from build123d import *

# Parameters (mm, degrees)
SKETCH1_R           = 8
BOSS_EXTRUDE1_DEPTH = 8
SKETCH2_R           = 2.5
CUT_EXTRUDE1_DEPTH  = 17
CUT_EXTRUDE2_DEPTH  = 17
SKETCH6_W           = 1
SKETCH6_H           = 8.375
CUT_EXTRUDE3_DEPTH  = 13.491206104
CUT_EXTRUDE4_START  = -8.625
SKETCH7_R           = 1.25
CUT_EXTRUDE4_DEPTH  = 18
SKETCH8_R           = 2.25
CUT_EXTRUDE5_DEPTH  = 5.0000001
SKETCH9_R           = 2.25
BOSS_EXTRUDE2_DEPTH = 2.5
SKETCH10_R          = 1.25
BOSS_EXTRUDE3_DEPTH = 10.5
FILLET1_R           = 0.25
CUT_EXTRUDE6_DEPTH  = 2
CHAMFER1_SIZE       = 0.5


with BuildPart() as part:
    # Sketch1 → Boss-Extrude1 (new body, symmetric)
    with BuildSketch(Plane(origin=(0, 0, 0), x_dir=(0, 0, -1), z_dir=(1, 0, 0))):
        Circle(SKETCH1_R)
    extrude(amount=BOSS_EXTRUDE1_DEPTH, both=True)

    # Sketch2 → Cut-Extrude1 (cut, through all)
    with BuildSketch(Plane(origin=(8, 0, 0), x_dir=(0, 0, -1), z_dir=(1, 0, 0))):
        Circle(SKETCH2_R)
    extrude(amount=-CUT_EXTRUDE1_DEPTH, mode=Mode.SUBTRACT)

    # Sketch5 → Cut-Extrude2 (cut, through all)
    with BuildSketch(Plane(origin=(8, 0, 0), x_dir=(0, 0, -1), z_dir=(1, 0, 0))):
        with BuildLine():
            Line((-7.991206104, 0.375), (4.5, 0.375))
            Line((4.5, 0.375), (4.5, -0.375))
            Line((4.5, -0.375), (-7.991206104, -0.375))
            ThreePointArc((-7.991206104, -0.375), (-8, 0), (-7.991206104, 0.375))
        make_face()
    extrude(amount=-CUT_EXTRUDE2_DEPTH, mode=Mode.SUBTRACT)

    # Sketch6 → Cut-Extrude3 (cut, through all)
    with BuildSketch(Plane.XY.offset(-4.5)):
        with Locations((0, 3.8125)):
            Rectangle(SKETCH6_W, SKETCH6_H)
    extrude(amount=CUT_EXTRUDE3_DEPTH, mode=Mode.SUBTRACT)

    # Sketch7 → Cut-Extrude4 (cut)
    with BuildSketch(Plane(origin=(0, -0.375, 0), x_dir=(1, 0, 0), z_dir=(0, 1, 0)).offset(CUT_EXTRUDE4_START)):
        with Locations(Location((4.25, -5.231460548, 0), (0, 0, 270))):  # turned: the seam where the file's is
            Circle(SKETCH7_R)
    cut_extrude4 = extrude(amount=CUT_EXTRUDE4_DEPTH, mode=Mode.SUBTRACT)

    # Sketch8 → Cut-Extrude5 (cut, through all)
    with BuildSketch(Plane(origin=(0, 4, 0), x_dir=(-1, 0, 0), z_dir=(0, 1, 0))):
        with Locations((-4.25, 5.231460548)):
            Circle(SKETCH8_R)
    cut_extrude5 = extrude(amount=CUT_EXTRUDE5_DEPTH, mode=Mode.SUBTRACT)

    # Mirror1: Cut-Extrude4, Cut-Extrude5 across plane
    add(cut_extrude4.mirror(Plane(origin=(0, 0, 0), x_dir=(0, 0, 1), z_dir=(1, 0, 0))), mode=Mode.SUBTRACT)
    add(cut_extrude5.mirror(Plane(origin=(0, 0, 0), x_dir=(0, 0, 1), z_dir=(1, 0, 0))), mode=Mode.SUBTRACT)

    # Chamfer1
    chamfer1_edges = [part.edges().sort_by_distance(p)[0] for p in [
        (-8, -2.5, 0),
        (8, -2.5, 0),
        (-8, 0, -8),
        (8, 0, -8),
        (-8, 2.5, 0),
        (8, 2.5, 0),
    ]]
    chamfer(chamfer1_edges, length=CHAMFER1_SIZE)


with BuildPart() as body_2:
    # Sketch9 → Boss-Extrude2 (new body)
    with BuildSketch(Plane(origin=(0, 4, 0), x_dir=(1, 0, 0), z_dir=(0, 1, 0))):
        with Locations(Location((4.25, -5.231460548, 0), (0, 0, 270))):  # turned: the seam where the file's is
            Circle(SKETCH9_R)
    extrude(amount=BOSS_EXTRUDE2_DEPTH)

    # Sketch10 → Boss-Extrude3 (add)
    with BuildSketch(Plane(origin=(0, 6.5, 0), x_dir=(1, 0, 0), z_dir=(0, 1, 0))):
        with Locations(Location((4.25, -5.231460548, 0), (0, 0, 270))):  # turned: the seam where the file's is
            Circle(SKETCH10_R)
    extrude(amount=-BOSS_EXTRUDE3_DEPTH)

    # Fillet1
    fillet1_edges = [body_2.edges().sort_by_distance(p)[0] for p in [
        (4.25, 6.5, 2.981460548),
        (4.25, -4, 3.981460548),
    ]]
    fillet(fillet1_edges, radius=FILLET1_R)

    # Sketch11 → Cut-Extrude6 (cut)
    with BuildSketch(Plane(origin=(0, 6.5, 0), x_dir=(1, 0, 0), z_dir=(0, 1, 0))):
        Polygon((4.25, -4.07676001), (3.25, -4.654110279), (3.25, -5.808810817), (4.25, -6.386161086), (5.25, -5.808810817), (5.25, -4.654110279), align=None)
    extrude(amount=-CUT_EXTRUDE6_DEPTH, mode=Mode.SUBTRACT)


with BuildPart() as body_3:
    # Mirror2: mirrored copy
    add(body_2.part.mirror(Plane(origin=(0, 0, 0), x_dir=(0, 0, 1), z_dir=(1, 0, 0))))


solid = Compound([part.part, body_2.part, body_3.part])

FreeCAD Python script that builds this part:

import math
import FreeCAD as App
import Part
import Sketcher

V = App.Vector
Q = App.Units.Quantity


def edges_at(feature, points):
    """Names of the edges that pass closest to the given points."""
    edges = feature.Shape.Edges
    near = lambda p: min(range(len(edges)), key=lambda i: edges[i].distToShape(Part.Vertex(*p))[0])
    return sorted({f"Edge{near(p) + 1}" for p in points})


def add_polygon(sketch, points):
    """Adds a closed chain of lines whose ends are joined by coincident constraints."""
    first, n = sketch.GeometryCount, len(points)
    for a, b in zip(points, points[1:] + points[:1]):
        sketch.addGeometry(Part.LineSegment(App.Vector(*a, 0), App.Vector(*b, 0)), False)
    for i in range(n):
        sketch.addConstraint(Sketcher.Constraint("Coincident", first + i, 2, first + (i + 1) % n, 1))

doc = App.newDocument("Part")
body = doc.addObject("PartDesign::Body", "Body")

sketch1 = body.newObject("Sketcher::SketchObject", "Sketch")
sketch1.AttachmentSupport = (doc.getObject("YZ_Plane"), [""])
sketch1.MapMode = "FlatFace"
sketch1.addGeometry(Part.Circle(V(0, 0, 0), V(0, 0, 1), 8), False)
sketch1.addConstraint([
    Sketcher.Constraint("Coincident", 0, 3, -1, 1),
    Sketcher.Constraint("Diameter", 0, 16.0),
])
pad1 = body.newObject("PartDesign::Pad", "Pad")
pad1.Profile = sketch1
pad1.Length = 16
pad1.Midplane = True

sketch2 = body.newObject("Sketcher::SketchObject", "Sketch001")
sketch2.AttachmentSupport = (doc.getObject("YZ_Plane"), [""])
sketch2.MapMode = "FlatFace"
sketch2.AttachmentOffset = App.Placement(V(0, 0, 8), App.Rotation())
sketch2.addGeometry(Part.Circle(V(0, 0, 0), V(0, 0, 1), 2.5), False)
sketch2.addConstraint([
    Sketcher.Constraint("Coincident", 0, 3, -1, 1),
    Sketcher.Constraint("Diameter", 0, 5.0),
])
pocket1 = body.newObject("PartDesign::Pocket", "Pocket")
pocket1.Profile = sketch2
pocket1.Type = "ThroughAll"

sketch3 = body.newObject("Sketcher::SketchObject", "Sketch002")
sketch3.AttachmentSupport = (doc.getObject("YZ_Plane"), [""])
sketch3.MapMode = "FlatFace"
sketch3.AttachmentOffset = App.Placement(V(0, 0, 8), App.Rotation())
sketch3.addGeometry([
    Part.LineSegment(V(0.375, -4.5, 0), V(0.375, 7.991206, 0)),
    Part.ArcOfCircle(Part.Circle(V(0, 0, 0), V(0, 0, 1), 8), math.radians(87.313276), math.radians(92.686724)),
    Part.LineSegment(V(-0.375, 7.991206, 0), V(-0.375, -4.5, 0)),
    Part.LineSegment(V(-0.375, -4.5, 0), V(0.375, -4.5, 0)),
], False)
sketch3.addConstraint([
    Sketcher.Constraint("Coincident", 0, 2, 1, 1),
    Sketcher.Constraint("Coincident", 1, 2, 2, 1),
    Sketcher.Constraint("Coincident", 2, 2, 3, 1),
    Sketcher.Constraint("Coincident", 3, 2, 0, 1),
    Sketcher.Constraint("Vertical", 0),
    Sketcher.Constraint("Vertical", 2),
    Sketcher.Constraint("Horizontal", 3),
    Sketcher.Constraint("Coincident", 1, 3, -1, 1),
    Sketcher.Constraint("Horizontal", 0, 2, 1, 2),
    Sketcher.Constraint("Radius", 1, 8.0),
    Sketcher.Constraint("DistanceX", 3, 1, 3, 2, 0.75),
    Sketcher.Constraint("DistanceY", 2, 2, -1, 1, 4.5),
])
pocket2 = body.newObject("PartDesign::Pocket", "Pocket001")
pocket2.Profile = sketch3
pocket2.Type = "ThroughAll"

sketch4 = body.newObject("Sketcher::SketchObject", "Sketch003")
sketch4.AttachmentSupport = (doc.getObject("XY_Plane"), [""])
sketch4.MapMode = "FlatFace"
sketch4.AttachmentOffset = App.Placement(V(0, 0, -4.5), App.Rotation())
add_polygon(sketch4, [(-0.5, 8), (-0.5, -0.375), (0.5, -0.375), (0.5, 8)])
sketch4.addConstraint([
    Sketcher.Constraint("Vertical", 0),
    Sketcher.Constraint("Horizontal", 1),
    Sketcher.Constraint("Vertical", 2),
    Sketcher.Constraint("Horizontal", 3),
    Sketcher.Constraint("DistanceX", 1, 1, 1, 2, 1.0),
    Sketcher.Constraint("DistanceY", -1, 1, 2, 2, 8.0),
    Sketcher.Constraint("DistanceX", 0, 2, -1, 1, 0.5),
    Sketcher.Constraint("DistanceY", 0, 2, 0, 1, 8.375),
])
pocket3 = body.newObject("PartDesign::Pocket", "Pocket002")
pocket3.Profile = sketch4
pocket3.Type = "ThroughAll"
pocket3.Reversed = True

sketch5 = body.newObject("Sketcher::SketchObject", "Sketch004")
sketch5.AttachmentSupport = (doc.getObject("XZ_Plane"), [""])
sketch5.MapMode = "FlatFace"
sketch5.AttachmentOffset = App.Placement(V(0, 0, 9), App.Rotation())
sketch5.addGeometry(Part.Circle(V(4.25, 5.231461, 0), V(0, 0, 1), 1.25), False)
sketch5.addConstraint([
    Sketcher.Constraint("Diameter", 0, 2.5),
    Sketcher.Constraint("DistanceX", -1, 1, 0, 3, 4.25),
    Sketcher.Constraint("DistanceY", -1, 1, 0, 3, 5.231461),
])
pocket4 = body.newObject("PartDesign::Pocket", "Pocket003")
pocket4.Profile = sketch5
pocket4.Length = 18

sketch6 = body.newObject("Sketcher::SketchObject", "Sketch005")
sketch6.AttachmentSupport = (doc.getObject("XZ_Plane"), [""])
sketch6.MapMode = "FlatFace"
sketch6.AttachmentOffset = App.Placement(V(0, 0, -4), App.Rotation())
sketch6.addGeometry(Part.Circle(V(4.25, 5.231461, 0), V(0, 0, 1), 2.25), False)
sketch6.addConstraint([
    Sketcher.Constraint("Diameter", 0, 4.5),
    Sketcher.Constraint("DistanceX", -1, 1, 0, 3, 4.25),
    Sketcher.Constraint("DistanceY", -1, 1, 0, 3, 5.231461),
])
pocket5 = body.newObject("PartDesign::Pocket", "Pocket004")
pocket5.Profile = sketch6
pocket5.Type = "ThroughAll"
doc.recompute()

mirrored = body.newObject("PartDesign::Mirrored", "Mirrored")
mirrored.Originals = [pocket4, pocket5]
mirrored.MirrorPlane = (doc.getObject("YZ_Plane"), [""])
body.Tip = mirrored
doc.recompute()

chamfer = body.newObject("PartDesign::Chamfer", "Chamfer")
chamfer.Base = (mirrored, edges_at(mirrored, [
    (-8, -2.5, 0),
    (8, -2.5, 0),
    (-8, 0, -8),
    (8, 0, -8),
    (-8, 2.5, 0),
    (8, 2.5, 0),
]))
chamfer.Size = 0.5
body2 = doc.addObject("PartDesign::Body", "Body001")

sketch7 = body2.newObject("Sketcher::SketchObject", "Sketch006")
sketch7.AttachmentSupport = (doc.getObject("XZ_Plane001"), [""])
sketch7.MapMode = "FlatFace"
sketch7.AttachmentOffset = App.Placement(V(0, 0, -4), App.Rotation())
sketch7.addGeometry(Part.Circle(V(4.25, 5.231461, 0), V(0, 0, 1), 2.25), False)
sketch7.addConstraint([
    Sketcher.Constraint("Diameter", 0, 4.5),
    Sketcher.Constraint("DistanceX", -1, 1, 0, 3, 4.25),
    Sketcher.Constraint("DistanceY", -1, 1, 0, 3, 5.231461),
])
pad2 = body2.newObject("PartDesign::Pad", "Pad001")
pad2.Profile = sketch7
pad2.Length = 2.5
pad2.Reversed = True

sketch8 = body2.newObject("Sketcher::SketchObject", "Sketch007")
sketch8.AttachmentSupport = (doc.getObject("XZ_Plane001"), [""])
sketch8.MapMode = "FlatFace"
sketch8.AttachmentOffset = App.Placement(V(0, 0, -6.5), App.Rotation())
sketch8.addGeometry(Part.Circle(V(4.25, 5.231461, 0), V(0, 0, 1), 1.25), False)
sketch8.addConstraint([
    Sketcher.Constraint("Diameter", 0, 2.5),
    Sketcher.Constraint("DistanceX", -1, 1, 0, 3, 4.25),
    Sketcher.Constraint("DistanceY", -1, 1, 0, 3, 5.231461),
])
pad3 = body2.newObject("PartDesign::Pad", "Pad002")
pad3.Profile = sketch8
pad3.Length = 10.5
doc.recompute()

fillet = body2.newObject("PartDesign::Fillet", "Fillet")
fillet.Base = (pad3, edges_at(pad3, [(4.25, 6.5, 2.981), (4.25, -4, 3.981)]))
fillet.Radius = 0.25

sketch9 = body2.newObject("Sketcher::SketchObject", "Sketch008")
sketch9.AttachmentSupport = (doc.getObject("XZ_Plane001"), [""])
sketch9.MapMode = "FlatFace"
sketch9.AttachmentOffset = App.Placement(V(0, 0, -6.5), App.Rotation())
add_polygon(sketch9, [(4.25, 4.07676), (3.25, 4.65411), (3.25, 5.808811), (4.25, 6.386161), (5.25, 5.808811), (5.25, 4.65411)])
sketch9.addConstraint([
    Sketcher.Constraint("Vertical", 1),
    Sketcher.Constraint("Vertical", 4),
    Sketcher.Constraint("Parallel", 0, 3),
    Sketcher.Constraint("Parallel", 2, 5),
    Sketcher.Constraint("Horizontal", 1, 2, 3, 2),
    Sketcher.Constraint("Horizontal", 0, 2, 4, 2),
    Sketcher.Constraint("Vertical", 2, 2, 5, 2),
    Sketcher.Constraint("Angle", 0, Q("150 deg")),
    Sketcher.Constraint("DistanceX", 1, 2, 2, 2, 1.0),
    Sketcher.Constraint("DistanceX", -1, 1, 0, 2, 3.25),
    Sketcher.Constraint("DistanceY", 1, 1, 1, 2, 1.154701),
    Sketcher.Constraint("DistanceY", -1, 1, 0, 2, 4.65411),
])
pocket6 = body2.newObject("PartDesign::Pocket", "Pocket005")
pocket6.Profile = sketch9
pocket6.Length = 2
pocket6.Reversed = True
body3 = doc.addObject("PartDesign::Body", "Body002")
doc.recompute()

mirroring = doc.addObject("Part::Mirroring", "Mirroring")
mirroring.Source = body2
mirroring.Base = V(0, 0, 0)
mirroring.Normal = V(1, 0, 0)
body3.BaseFeature = mirroring
doc.recompute()
mirroring.Visibility = False

doc.recompute()
